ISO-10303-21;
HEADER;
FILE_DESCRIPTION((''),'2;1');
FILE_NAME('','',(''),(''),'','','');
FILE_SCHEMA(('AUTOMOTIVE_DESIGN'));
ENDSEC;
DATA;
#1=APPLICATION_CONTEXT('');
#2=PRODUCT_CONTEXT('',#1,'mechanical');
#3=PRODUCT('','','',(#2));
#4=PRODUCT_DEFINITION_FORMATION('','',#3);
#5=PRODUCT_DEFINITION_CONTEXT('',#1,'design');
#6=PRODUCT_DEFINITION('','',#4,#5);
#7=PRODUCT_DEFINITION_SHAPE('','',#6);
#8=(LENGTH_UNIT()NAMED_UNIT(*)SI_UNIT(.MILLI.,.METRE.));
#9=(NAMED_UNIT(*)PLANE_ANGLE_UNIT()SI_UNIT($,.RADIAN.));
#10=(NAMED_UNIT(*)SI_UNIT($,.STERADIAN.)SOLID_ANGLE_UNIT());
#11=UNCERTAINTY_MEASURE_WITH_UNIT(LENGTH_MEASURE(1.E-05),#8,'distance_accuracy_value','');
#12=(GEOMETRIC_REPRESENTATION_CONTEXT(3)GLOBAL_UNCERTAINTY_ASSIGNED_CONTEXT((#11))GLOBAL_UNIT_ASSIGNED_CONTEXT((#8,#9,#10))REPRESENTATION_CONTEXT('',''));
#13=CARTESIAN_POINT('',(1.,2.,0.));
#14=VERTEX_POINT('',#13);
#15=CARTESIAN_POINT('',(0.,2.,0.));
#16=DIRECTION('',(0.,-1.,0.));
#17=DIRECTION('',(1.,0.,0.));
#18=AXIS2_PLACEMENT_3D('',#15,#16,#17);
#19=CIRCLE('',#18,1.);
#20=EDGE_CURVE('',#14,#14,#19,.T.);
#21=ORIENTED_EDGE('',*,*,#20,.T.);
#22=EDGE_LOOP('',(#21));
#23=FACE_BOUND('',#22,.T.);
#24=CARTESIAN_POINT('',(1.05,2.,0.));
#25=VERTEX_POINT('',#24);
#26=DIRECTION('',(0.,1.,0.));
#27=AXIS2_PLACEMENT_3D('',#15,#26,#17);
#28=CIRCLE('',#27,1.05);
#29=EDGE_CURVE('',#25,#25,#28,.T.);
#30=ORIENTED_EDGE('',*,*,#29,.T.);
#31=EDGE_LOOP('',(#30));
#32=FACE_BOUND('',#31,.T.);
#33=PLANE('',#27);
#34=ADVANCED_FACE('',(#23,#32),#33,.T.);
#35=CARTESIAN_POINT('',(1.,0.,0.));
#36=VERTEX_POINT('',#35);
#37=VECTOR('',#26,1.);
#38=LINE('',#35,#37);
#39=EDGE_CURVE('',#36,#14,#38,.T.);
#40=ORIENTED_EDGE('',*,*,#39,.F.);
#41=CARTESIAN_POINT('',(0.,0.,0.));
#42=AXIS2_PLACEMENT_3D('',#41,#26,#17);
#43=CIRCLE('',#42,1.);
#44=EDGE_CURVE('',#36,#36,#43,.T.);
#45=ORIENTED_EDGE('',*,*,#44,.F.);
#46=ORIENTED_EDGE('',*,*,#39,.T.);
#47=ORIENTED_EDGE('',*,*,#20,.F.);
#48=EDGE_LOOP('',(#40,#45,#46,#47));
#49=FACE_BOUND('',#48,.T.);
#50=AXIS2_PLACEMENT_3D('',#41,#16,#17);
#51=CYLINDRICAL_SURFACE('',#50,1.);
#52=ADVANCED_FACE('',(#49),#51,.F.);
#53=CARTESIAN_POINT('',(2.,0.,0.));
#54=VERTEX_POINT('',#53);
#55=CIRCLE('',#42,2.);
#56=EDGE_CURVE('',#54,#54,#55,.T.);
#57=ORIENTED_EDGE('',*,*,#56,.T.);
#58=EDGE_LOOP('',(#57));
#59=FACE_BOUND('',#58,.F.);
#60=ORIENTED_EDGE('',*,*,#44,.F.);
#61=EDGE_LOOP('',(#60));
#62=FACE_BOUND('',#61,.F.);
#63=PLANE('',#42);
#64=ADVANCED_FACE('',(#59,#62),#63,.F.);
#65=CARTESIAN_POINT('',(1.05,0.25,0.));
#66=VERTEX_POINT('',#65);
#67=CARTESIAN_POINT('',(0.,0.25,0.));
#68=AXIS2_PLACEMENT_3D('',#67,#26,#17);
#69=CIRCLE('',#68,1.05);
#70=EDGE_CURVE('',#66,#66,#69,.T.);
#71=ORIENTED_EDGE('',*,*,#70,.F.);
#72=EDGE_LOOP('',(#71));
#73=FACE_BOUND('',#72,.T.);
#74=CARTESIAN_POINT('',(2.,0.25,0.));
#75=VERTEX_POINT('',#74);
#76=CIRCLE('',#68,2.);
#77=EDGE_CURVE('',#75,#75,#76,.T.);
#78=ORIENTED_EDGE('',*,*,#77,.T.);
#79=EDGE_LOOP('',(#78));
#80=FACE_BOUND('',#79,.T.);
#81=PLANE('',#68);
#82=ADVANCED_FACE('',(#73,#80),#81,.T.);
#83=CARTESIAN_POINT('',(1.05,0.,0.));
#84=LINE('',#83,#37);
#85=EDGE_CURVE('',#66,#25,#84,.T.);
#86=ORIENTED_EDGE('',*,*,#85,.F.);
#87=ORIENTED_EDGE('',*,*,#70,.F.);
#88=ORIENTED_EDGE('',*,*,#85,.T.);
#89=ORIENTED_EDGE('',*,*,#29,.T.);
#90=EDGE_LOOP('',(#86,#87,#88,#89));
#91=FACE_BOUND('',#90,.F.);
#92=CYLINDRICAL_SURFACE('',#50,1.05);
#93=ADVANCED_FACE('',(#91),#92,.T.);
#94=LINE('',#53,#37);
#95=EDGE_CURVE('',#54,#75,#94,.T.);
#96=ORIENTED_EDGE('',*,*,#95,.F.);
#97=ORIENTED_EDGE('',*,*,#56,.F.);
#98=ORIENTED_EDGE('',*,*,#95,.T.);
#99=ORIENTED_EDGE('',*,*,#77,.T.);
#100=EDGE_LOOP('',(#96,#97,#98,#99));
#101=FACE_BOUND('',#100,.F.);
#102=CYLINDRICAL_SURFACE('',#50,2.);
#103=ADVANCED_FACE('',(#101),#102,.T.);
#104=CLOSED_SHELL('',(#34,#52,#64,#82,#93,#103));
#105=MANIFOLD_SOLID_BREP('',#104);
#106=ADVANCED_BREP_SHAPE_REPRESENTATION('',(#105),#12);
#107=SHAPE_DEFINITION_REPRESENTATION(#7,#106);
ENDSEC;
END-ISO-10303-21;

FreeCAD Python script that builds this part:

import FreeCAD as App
import Part
import Sketcher
from FreeCAD import Vector

doc = App.newDocument("Part")
body = doc.addObject("PartDesign::Body", "Body")

# Sketch on XZ plane
sketch1 = body.newObject("Sketcher::SketchObject", "Sketch")
sketch1.AttachmentSupport = (doc.getObject("XZ_Plane"), [""])
sketch1.MapMode = "FlatFace"
sketch1.addGeometry([
    Part.Circle(Vector(0, 0, 0), Vector(0, 0, 1), 2),
    Part.Circle(Vector(0, 0, 0), Vector(0, 0, 1), 1.05),
], False)
sketch1.addConstraint([
    Sketcher.Constraint("Coincident", 0, 3, -1, 1),
    Sketcher.Constraint("Coincident", 1, 3, -1, 1),
    Sketcher.Constraint("Diameter", 0, 4.0),
    Sketcher.Constraint("Diameter", 1, 2.1),
])
pad1 = body.newObject("PartDesign::Pad", "Pad")
pad1.Profile = sketch1
pad1.Length = 0.25
pad1.Reversed = True

# Sketch on XZ plane
sketch2 = body.newObject("Sketcher::SketchObject", "Sketch001")
sketch2.AttachmentSupport = (doc.getObject("XZ_Plane"), [""])
sketch2.MapMode = "FlatFace"
sketch2.addGeometry(Part.Circle(Vector(0, 0, 0), Vector(0, 0, 1), 1.05), False)
sketch2.addConstraint([
    Sketcher.Constraint("Coincident", 0, 3, -1, 1),
    Sketcher.Constraint("Diameter", 0, 2.1),
])
pad2 = body.newObject("PartDesign::Pad", "Pad001")
pad2.Profile = sketch2
pad2.Length = 2
pad2.Reversed = True

# Sketch on XZ plane
sketch3 = body.newObject("Sketcher::SketchObject", "Sketch002")
sketch3.AttachmentSupport = (doc.getObject("XZ_Plane"), [""])
sketch3.MapMode = "FlatFace"
sketch3.addGeometry(Part.Circle(Vector(0, 0, 0), Vector(0, 0, 1), 1), False)
sketch3.addConstraint([
    Sketcher.Constraint("Coincident", 0, 3, -1, 1),
    Sketcher.Constraint("Diameter", 0, 2.0),
])
pocket1 = body.newObject("PartDesign::Pocket", "Pocket")
pocket1.Profile = sketch3
pocket1.Length = 3.883

doc.recompute()
